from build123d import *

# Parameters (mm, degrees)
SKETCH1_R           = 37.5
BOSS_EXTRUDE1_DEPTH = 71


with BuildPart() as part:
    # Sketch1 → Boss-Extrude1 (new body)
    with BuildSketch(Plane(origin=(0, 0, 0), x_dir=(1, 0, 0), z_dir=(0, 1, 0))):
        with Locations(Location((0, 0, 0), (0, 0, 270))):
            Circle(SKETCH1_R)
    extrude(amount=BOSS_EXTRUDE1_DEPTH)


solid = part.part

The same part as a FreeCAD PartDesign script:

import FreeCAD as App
import Part
import Sketcher
Q = App.Units.Quantity

doc = App.newDocument("Part")
params = doc.addObject("Spreadsheet::Sheet", "Params")
for row, (alias, value) in enumerate([
    ("sketch1_diameter", "75 mm"),
    ("pad1_length", "71 mm"),
], start=1):
    params.set(f"A{row}", alias)
    params.set(f"B{row}", "=" + value)
    params.setAlias(f"B{row}", alias)

body = doc.addObject("PartDesign::Body", "Body")

sketch1 = body.newObject("Sketcher::SketchObject", "Sketch")
sketch1.AttachmentSupport = (doc.getObject("XZ_Plane"), [""])
sketch1.MapMode = "FlatFace"
sketch1.addGeometry(Part.Circle(App.Vector(0, 0, 0), App.Vector(0, 0, 1), 38), False)
sketch1.addConstraint([
    Sketcher.Constraint("Coincident", 0, 3, -1, 1),
    Sketcher.Constraint("Diameter", 0, Q("75 mm")),
])
sketch1.setExpression("Constraints[1]", "Params.sketch1_diameter")
pad1 = body.newObject("PartDesign::Pad", "Pad")
pad1.Profile = sketch1
pad1.setExpression("Length", "Params.pad1_length")
pad1.Reversed = True

doc.recompute()
